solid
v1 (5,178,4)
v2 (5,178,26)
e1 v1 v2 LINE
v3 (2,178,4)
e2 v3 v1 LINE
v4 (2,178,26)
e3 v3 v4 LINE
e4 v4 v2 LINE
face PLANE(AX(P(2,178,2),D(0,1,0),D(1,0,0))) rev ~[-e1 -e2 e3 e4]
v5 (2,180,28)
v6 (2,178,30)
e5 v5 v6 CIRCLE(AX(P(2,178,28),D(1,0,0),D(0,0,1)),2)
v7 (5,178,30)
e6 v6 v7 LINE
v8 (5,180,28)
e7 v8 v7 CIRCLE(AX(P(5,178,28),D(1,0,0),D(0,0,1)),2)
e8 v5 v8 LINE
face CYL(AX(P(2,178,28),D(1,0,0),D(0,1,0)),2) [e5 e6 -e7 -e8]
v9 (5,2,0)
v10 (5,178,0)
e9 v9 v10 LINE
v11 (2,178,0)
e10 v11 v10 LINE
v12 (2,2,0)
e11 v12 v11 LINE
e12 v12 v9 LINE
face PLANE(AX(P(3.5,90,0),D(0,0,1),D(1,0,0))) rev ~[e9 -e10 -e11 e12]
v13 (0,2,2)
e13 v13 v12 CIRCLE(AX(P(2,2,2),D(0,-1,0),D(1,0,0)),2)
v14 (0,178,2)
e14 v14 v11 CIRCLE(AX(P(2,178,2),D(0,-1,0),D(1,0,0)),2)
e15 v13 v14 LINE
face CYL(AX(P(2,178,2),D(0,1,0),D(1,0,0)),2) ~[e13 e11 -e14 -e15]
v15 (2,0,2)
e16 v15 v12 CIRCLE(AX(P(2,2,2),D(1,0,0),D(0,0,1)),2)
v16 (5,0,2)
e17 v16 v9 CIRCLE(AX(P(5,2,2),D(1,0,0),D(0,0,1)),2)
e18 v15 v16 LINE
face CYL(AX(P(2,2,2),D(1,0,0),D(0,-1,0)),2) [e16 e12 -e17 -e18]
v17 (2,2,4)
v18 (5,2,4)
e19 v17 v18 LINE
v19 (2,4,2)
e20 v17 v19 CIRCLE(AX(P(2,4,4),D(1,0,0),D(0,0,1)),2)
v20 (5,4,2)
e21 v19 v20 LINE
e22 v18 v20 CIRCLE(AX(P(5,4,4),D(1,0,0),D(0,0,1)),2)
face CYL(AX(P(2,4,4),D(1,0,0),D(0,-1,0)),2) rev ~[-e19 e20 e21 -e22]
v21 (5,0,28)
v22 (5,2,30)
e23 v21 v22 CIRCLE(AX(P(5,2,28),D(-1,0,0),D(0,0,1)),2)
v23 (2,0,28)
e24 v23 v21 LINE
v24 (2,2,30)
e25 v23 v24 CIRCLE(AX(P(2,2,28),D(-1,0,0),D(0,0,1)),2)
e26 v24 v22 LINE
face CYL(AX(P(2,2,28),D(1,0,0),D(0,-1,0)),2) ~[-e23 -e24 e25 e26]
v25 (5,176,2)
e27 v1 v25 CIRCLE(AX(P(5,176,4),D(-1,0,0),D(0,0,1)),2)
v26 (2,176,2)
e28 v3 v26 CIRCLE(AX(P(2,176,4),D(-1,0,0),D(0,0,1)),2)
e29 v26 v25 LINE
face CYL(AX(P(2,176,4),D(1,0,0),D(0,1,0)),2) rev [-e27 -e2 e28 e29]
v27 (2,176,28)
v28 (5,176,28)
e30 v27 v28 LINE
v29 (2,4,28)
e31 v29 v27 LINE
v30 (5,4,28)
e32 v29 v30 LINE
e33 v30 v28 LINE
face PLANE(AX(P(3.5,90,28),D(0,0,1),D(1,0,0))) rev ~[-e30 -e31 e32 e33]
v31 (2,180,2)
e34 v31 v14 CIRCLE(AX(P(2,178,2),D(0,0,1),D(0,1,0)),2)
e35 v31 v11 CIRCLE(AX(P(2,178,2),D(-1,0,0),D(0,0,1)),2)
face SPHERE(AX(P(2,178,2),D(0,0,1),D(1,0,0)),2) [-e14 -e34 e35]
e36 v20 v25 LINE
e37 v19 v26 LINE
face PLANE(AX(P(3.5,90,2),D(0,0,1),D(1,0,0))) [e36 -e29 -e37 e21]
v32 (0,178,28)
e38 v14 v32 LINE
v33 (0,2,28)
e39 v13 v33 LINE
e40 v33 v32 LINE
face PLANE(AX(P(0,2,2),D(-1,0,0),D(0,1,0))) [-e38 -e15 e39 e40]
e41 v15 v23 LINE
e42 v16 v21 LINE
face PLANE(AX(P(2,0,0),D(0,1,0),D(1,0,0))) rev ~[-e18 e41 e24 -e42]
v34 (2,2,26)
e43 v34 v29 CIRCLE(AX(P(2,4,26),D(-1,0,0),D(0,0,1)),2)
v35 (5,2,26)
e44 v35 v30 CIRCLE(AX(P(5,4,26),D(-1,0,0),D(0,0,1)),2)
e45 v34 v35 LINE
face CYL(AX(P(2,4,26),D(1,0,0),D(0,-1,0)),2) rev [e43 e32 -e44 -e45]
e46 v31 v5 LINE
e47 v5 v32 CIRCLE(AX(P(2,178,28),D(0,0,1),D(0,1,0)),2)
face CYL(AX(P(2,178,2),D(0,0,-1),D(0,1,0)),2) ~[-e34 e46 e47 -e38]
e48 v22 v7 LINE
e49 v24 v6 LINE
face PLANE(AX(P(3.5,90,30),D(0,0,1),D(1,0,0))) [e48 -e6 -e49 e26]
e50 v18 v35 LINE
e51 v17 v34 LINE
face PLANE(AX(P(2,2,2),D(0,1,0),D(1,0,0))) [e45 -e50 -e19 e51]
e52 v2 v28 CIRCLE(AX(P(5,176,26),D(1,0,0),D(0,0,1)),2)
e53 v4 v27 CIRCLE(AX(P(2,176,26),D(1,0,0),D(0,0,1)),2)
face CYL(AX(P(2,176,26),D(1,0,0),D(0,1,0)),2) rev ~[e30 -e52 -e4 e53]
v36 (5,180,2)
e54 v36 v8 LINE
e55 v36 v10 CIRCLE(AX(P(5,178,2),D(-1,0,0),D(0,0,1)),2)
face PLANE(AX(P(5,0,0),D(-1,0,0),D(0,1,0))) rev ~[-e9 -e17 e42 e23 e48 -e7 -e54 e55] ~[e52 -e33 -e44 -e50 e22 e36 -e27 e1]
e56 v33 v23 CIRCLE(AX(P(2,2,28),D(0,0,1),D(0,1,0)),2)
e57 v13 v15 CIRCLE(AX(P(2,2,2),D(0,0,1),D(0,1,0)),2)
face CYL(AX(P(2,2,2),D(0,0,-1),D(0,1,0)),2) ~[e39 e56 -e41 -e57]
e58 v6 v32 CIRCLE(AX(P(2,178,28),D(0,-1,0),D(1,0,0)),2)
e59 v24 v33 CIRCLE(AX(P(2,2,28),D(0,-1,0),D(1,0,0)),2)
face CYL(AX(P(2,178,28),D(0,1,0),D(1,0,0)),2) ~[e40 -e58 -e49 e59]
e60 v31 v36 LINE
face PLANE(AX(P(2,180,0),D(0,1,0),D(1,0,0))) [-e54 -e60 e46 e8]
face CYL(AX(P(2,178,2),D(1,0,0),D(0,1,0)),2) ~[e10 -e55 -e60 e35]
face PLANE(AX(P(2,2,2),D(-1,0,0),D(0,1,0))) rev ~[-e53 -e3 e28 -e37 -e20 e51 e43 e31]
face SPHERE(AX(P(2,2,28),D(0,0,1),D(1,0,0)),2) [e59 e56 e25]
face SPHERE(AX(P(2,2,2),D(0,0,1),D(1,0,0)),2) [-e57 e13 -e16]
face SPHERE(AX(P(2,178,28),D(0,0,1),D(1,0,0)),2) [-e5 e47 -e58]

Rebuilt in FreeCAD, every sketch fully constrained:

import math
import FreeCAD as App
import Part
import Sketcher
from FreeCAD import Vector
Q = App.Units.Quantity


def edges_at(feature, points):
    """Names of the edges that pass closest to the given points."""
    edges = feature.Shape.Edges
    near = lambda p: min(range(len(edges)), key=lambda i: edges[i].distToShape(Part.Vertex(*p))[0])
    return sorted({f"Edge{near(p) + 1}" for p in points})


def add_polygon(sketch, points):
    """Adds a closed chain of lines whose ends are joined by coincident constraints."""
    first, n = sketch.GeometryCount, len(points)
    for a, b in zip(points, points[1:] + points[:1]):
        sketch.addGeometry(Part.LineSegment(App.Vector(*a, 0), App.Vector(*b, 0)), False)
    for i in range(n):
        sketch.addConstraint(Sketcher.Constraint("Coincident", first + i, 2, first + (i + 1) % n, 1))

doc = App.newDocument("Part")
body = doc.addObject("PartDesign::Body", "Body")

# Sketch on XY plane
sketch1 = body.newObject("Sketcher::SketchObject", "Sketch")
sketch1.AttachmentSupport = (doc.getObject("XY_Plane"), [""])
sketch1.MapMode = "FlatFace"
sketch1.AttachmentOffset = App.Placement(Vector(0, 0, 2), App.Rotation())
add_polygon(sketch1, [(7, 178), (7, 2), (10, 2), (10, 178)])  # lines 0-3
sketch1.addConstraint(Sketcher.Constraint("Vertical", 0))
sketch1.addConstraint(Sketcher.Constraint("Horizontal", 1))
sketch1.addConstraint(Sketcher.Constraint("Vertical", 2))
sketch1.addConstraint(Sketcher.Constraint("Horizontal", 3))
sketch1.addConstraint(Sketcher.Constraint("DistanceX", 1, 1, 1, 2, Q("3 mm")))
sketch1.addConstraint(Sketcher.Constraint("DistanceY", 0, 2, 0, 1, Q("176 mm")))
sketch1.addConstraint(Sketcher.Constraint("DistanceX", -1, 1, 0, 2, Q("7 mm")))
sketch1.addConstraint(Sketcher.Constraint("DistanceY", -1, 1, 0, 2, Q("2 mm")))
pad1 = body.newObject("PartDesign::Pad", "Pad")
pad1.Profile = sketch1
pad1.Length = 26
doc.recompute()

fillet = body.newObject("PartDesign::Fillet", "Fillet")
fillet.Base = (pad1, edges_at(pad1, [
    (8.5, 2, 2),
    (8.5, 2, 28),
    (8.5, 178, 2),
    (8.5, 178, 28),
]))
fillet.Radius = 2
body2 = doc.addObject("PartDesign::Body", "Body001")
doc.recompute()

body.Placement = App.Placement(Vector(-5, 0, 0), App.Rotation(Vector(0, 0, 1), 0))
boolean = body2.newObject("PartDesign::Boolean", "Boolean")
boolean.Type = "Fuse"
boolean.addObjects([body])
body3 = doc.addObject("PartDesign::Body", "Body002")

# Sketch on XY plane
sketch2 = body3.newObject("Sketcher::SketchObject", "Sketch001")
sketch2.AttachmentSupport = (doc.getObject("XY_Plane002"), [""])
sketch2.MapMode = "FlatFace"
sketch2.AttachmentOffset = App.Placement(Vector(0, 0, 2), App.Rotation())
add_polygon(sketch2, [(0, 178), (0, 2), (2, 2), (2, 178)])  # lines 0-3
sketch2.addConstraint(Sketcher.Constraint("Vertical", 0))
sketch2.addConstraint(Sketcher.Constraint("Horizontal", 1))
sketch2.addConstraint(Sketcher.Constraint("Vertical", 2))
sketch2.addConstraint(Sketcher.Constraint("Horizontal", 3))
sketch2.addConstraint(Sketcher.Constraint("PointOnObject", 0, 2, -2))
sketch2.addConstraint(Sketcher.Constraint("DistanceX", 1, 1, 1, 2, Q("2 mm")))
sketch2.addConstraint(Sketcher.Constraint("DistanceY", 0, 2, 0, 1, Q("176 mm")))
sketch2.addConstraint(Sketcher.Constraint("DistanceY", -1, 1, 0, 2, Q("2 mm")))
pad2 = body3.newObject("PartDesign::Pad", "Pad001")
pad2.Profile = sketch2
pad2.Length = 26
body4 = doc.addObject("PartDesign::Body", "Body003")

# Sketch on XY plane
sketch3 = body4.newObject("Sketcher::SketchObject", "Sketch002")
sketch3.AttachmentSupport = (doc.getObject("XY_Plane003"), [""])
sketch3.MapMode = "FlatFace"
sketch3.AttachmentOffset = App.Placement(Vector(0, 0, 2), App.Rotation())
sketch3.addGeometry(Part.Circle(Vector(2, 2, 0), Vector(0, 0, 1), 2), False)
sketch3.addConstraint(Sketcher.Constraint("Diameter", 0, Q("4 mm")))
sketch3.addConstraint(Sketcher.Constraint("DistanceX", -1, 1, 0, 3, Q("2 mm")))
sketch3.addConstraint(Sketcher.Constraint("DistanceY", -1, 1, 0, 3, Q("2 mm")))
pad3 = body4.newObject("PartDesign::Pad", "Pad002")
pad3.Profile = sketch3
pad3.Length = 26
body5 = doc.addObject("PartDesign::Body", "Body004")

# Sketch on XY plane
sketch4 = body5.newObject("Sketcher::SketchObject", "Sketch003")
sketch4.AttachmentSupport = (doc.getObject("XY_Plane004"), [""])
sketch4.MapMode = "FlatFace"
sketch4.AttachmentOffset = App.Placement(Vector(0, 0, 2), App.Rotation())
sketch4.addGeometry(Part.Circle(Vector(2, 178, 0), Vector(0, 0, 1), 2), False)
sketch4.addConstraint(Sketcher.Constraint("Diameter", 0, Q("4 mm")))
sketch4.addConstraint(Sketcher.Constraint("DistanceX", -1, 1, 0, 3, Q("2 mm")))
sketch4.addConstraint(Sketcher.Constraint("DistanceY", -1, 1, 0, 3, Q("178 mm")))
pad4 = body5.newObject("PartDesign::Pad", "Pad003")
pad4.Profile = sketch4
pad4.Length = 26
body6 = doc.addObject("PartDesign::Body", "Body005")

# Sketch on XZ plane
sketch5 = body6.newObject("Sketcher::SketchObject", "Sketch004")
sketch5.AttachmentSupport = (doc.getObject("XZ_Plane005"), [""])
sketch5.MapMode = "FlatFace"
sketch5.AttachmentOffset = App.Placement(Vector(0, 0, -178), App.Rotation())
sketch5.addGeometry(Part.Circle(Vector(2, 2, 0), Vector(0, 0, 1), 2), False)
sketch5.addConstraint(Sketcher.Constraint("Diameter", 0, Q("4 mm")))
sketch5.addConstraint(Sketcher.Constraint("DistanceX", -1, 1, 0, 3, Q("2 mm")))
sketch5.addConstraint(Sketcher.Constraint("DistanceY", -1, 1, 0, 3, Q("2 mm")))
pad5 = body6.newObject("PartDesign::Pad", "Pad004")
pad5.Profile = sketch5
pad5.Length = 176
body7 = doc.addObject("PartDesign::Body", "Body006")

# Sketch on XZ plane
sketch6 = body7.newObject("Sketcher::SketchObject", "Sketch005")
sketch6.AttachmentSupport = (doc.getObject("XZ_Plane006"), [""])
sketch6.MapMode = "FlatFace"
sketch6.AttachmentOffset = App.Placement(Vector(0, 0, -178), App.Rotation())
sketch6.addGeometry(Part.Circle(Vector(2, 28, 0), Vector(0, 0, 1), 2), False)
sketch6.addConstraint(Sketcher.Constraint("Diameter", 0, Q("4 mm")))
sketch6.addConstraint(Sketcher.Constraint("DistanceX", -1, 1, 0, 3, Q("2 mm")))
sketch6.addConstraint(Sketcher.Constraint("DistanceY", -1, 1, 0, 3, Q("28 mm")))
pad6 = body7.newObject("PartDesign::Pad", "Pad005")
pad6.Profile = sketch6
pad6.Length = 176
body8 = doc.addObject("PartDesign::Body", "Body007")

# Sketch on XZ plane
sketch7 = body8.newObject("Sketcher::SketchObject", "Sketch006")
sketch7.AttachmentSupport = (doc.getObject("XZ_Plane007"), [""])
sketch7.MapMode = "FlatFace"
sketch7.AttachmentOffset = App.Placement(Vector(0, 0, -2), App.Rotation())
sketch7.addGeometry(Part.ArcOfCircle(Part.Circle(Vector(2, 2, 0), Vector(0, 0, 1), 2), math.radians(-90), math.radians(90)), False)
sketch7.addGeometry(Part.LineSegment(Vector(2, 4, 0), Vector(2, 0, 0)), False)
sketch7.addGeometry(Part.LineSegment(Vector(2, 0, 0), Vector(2, 4, 0)), True)  # axis
sketch7.addConstraint(Sketcher.Constraint("Coincident", 0, 1, 1, 2))
sketch7.addConstraint(Sketcher.Constraint("Coincident", 1, 1, 0, 2))
sketch7.addConstraint(Sketcher.Constraint("Vertical", 1))
sketch7.addConstraint(Sketcher.Constraint("Vertical", 2))
sketch7.addConstraint(Sketcher.Constraint("Coincident", 2, 1, 0, 1))
sketch7.addConstraint(Sketcher.Constraint("PointOnObject", 0, 1, -1))
sketch7.addConstraint(Sketcher.Constraint("Equal", 1, 2))
sketch7.addConstraint(Sketcher.Constraint("Radius", 0, Q("2 mm")))
sketch7.addConstraint(Sketcher.Constraint("DistanceX", -1, 1, 0, 3, Q("2 mm")))
sketch7.addConstraint(Sketcher.Constraint("DistanceX", -1, 1, 0, 1, Q("2 mm")))
revolution = body8.newObject("PartDesign::Revolution", "Revolution")
revolution.Profile = sketch7
revolution.ReferenceAxis = (sketch7, ["Axis0"])
revolution.Angle = 360
body9 = doc.addObject("PartDesign::Body", "Body008")

# Sketch on XZ plane
sketch8 = body9.newObject("Sketcher::SketchObject", "Sketch007")
sketch8.AttachmentSupport = (doc.getObject("XZ_Plane008"), [""])
sketch8.MapMode = "FlatFace"
sketch8.AttachmentOffset = App.Placement(Vector(0, 0, -178), App.Rotation())
sketch8.addGeometry(Part.ArcOfCircle(Part.Circle(Vector(2, 2, 0), Vector(0, 0, 1), 2), math.radians(-90), math.radians(90)), False)
sketch8.addGeometry(Part.LineSegment(Vector(2, 4, 0), Vector(2, 0, 0)), False)
sketch8.addGeometry(Part.LineSegment(Vector(2, 0, 0), Vector(2, 4, 0)), True)  # axis
sketch8.addConstraint(Sketcher.Constraint("Coincident", 0, 1, 1, 2))
sketch8.addConstraint(Sketcher.Constraint("Coincident", 1, 1, 0, 2))
sketch8.addConstraint(Sketcher.Constraint("Vertical", 1))
sketch8.addConstraint(Sketcher.Constraint("Vertical", 2))
sketch8.addConstraint(Sketcher.Constraint("Coincident", 2, 1, 0, 1))
sketch8.addConstraint(Sketcher.Constraint("PointOnObject", 0, 1, -1))
sketch8.addConstraint(Sketcher.Constraint("Equal", 1, 2))
sketch8.addConstraint(Sketcher.Constraint("Radius", 0, Q("2 mm")))
sketch8.addConstraint(Sketcher.Constraint("DistanceX", -1, 1, 0, 3, Q("2 mm")))
sketch8.addConstraint(Sketcher.Constraint("DistanceX", -1, 1, 0, 1, Q("2 mm")))
revolution2 = body9.newObject("PartDesign::Revolution", "Revolution001")
revolution2.Profile = sketch8
revolution2.ReferenceAxis = (sketch8, ["Axis0"])
revolution2.Angle = 360
body10 = doc.addObject("PartDesign::Body", "Body009")

# Sketch on XZ plane
sketch9 = body10.newObject("Sketcher::SketchObject", "Sketch008")
sketch9.AttachmentSupport = (doc.getObject("XZ_Plane009"), [""])
sketch9.MapMode = "FlatFace"
sketch9.AttachmentOffset = App.Placement(Vector(0, 0, -2), App.Rotation())
sketch9.addGeometry(Part.ArcOfCircle(Part.Circle(Vector(2, 28, 0), Vector(0, 0, 1), 2), math.radians(-90), math.radians(90)), False)
sketch9.addGeometry(Part.LineSegment(Vector(2, 30, 0), Vector(2, 26, 0)), False)
sketch9.addGeometry(Part.LineSegment(Vector(2, 26, 0), Vector(2, 30, 0)), True)  # axis
sketch9.addConstraint(Sketcher.Constraint("Coincident", 0, 1, 1, 2))
sketch9.addConstraint(Sketcher.Constraint("Coincident", 1, 1, 0, 2))
sketch9.addConstraint(Sketcher.Constraint("Vertical", 1))
sketch9.addConstraint(Sketcher.Constraint("Vertical", 2))
sketch9.addConstraint(Sketcher.Constraint("Coincident", 2, 1, 0, 1))
sketch9.addConstraint(Sketcher.Constraint("Equal", 1, 2))
sketch9.addConstraint(Sketcher.Constraint("Radius", 0, Q("2 mm")))
sketch9.addConstraint(Sketcher.Constraint("DistanceX", -1, 1, 0, 3, Q("2 mm")))
sketch9.addConstraint(Sketcher.Constraint("DistanceY", -1, 1, 0, 3, Q("28 mm")))
sketch9.addConstraint(Sketcher.Constraint("DistanceX", -1, 1, 0, 1, Q("2 mm")))
revolution3 = body10.newObject("PartDesign::Revolution", "Revolution002")
revolution3.Profile = sketch9
revolution3.ReferenceAxis = (sketch9, ["Axis0"])
revolution3.Angle = 360
body11 = doc.addObject("PartDesign::Body", "Body010")

# Sketch on XZ plane
sketch10 = body11.newObject("Sketcher::SketchObject", "Sketch009")
sketch10.AttachmentSupport = (doc.getObject("XZ_Plane010"), [""])
sketch10.MapMode = "FlatFace"
sketch10.AttachmentOffset = App.Placement(Vector(0, 0, -178), App.Rotation())
sketch10.addGeometry(Part.ArcOfCircle(Part.Circle(Vector(2, 28, 0), Vector(0, 0, 1), 2), math.radians(-90), math.radians(90)), False)
sketch10.addGeometry(Part.LineSegment(Vector(2, 30, 0), Vector(2, 26, 0)), False)
sketch10.addGeometry(Part.LineSegment(Vector(2, 26, 0), Vector(2, 30, 0)), True)  # axis
sketch10.addConstraint(Sketcher.Constraint("Coincident", 0, 1, 1, 2))
sketch10.addConstraint(Sketcher.Constraint("Coincident", 1, 1, 0, 2))
sketch10.addConstraint(Sketcher.Constraint("Vertical", 1))
sketch10.addConstraint(Sketcher.Constraint("Vertical", 2))
sketch10.addConstraint(Sketcher.Constraint("Coincident", 2, 1, 0, 1))
sketch10.addConstraint(Sketcher.Constraint("Equal", 1, 2))
sketch10.addConstraint(Sketcher.Constraint("Radius", 0, Q("2 mm")))
sketch10.addConstraint(Sketcher.Constraint("DistanceX", -1, 1, 0, 3, Q("2 mm")))
sketch10.addConstraint(Sketcher.Constraint("DistanceY", -1, 1, 0, 3, Q("28 mm")))
sketch10.addConstraint(Sketcher.Constraint("DistanceX", -1, 1, 0, 1, Q("2 mm")))
revolution4 = body11.newObject("PartDesign::Revolution", "Revolution003")
revolution4.Profile = sketch10
revolution4.ReferenceAxis = (sketch10, ["Axis0"])
revolution4.Angle = 360
body12 = doc.addObject("PartDesign::Body", "Body011")

# Sketch on XY plane
sketch11 = body12.newObject("Sketcher::SketchObject", "Sketch010")
sketch11.AttachmentSupport = (doc.getObject("XY_Plane011"), [""])
sketch11.MapMode = "FlatFace"
add_polygon(sketch11, [(2, 180), (2, 0), (5, 0), (5, 180)])  # lines 0-3
sketch11.addConstraint(Sketcher.Constraint("Vertical", 0))
sketch11.addConstraint(Sketcher.Constraint("Horizontal", 1))
sketch11.addConstraint(Sketcher.Constraint("Vertical", 2))
sketch11.addConstraint(Sketcher.Constraint("Horizontal", 3))
sketch11.addConstraint(Sketcher.Constraint("PointOnObject", 0, 2, -1))
sketch11.addConstraint(Sketcher.Constraint("DistanceX", 1, 1, 1, 2, Q("3 mm")))
sketch11.addConstraint(Sketcher.Constraint("DistanceY", 0, 2, 0, 1, Q("180 mm")))
sketch11.addConstraint(Sketcher.Constraint("DistanceX", -1, 1, 0, 2, Q("2 mm")))
pad7 = body12.newObject("PartDesign::Pad", "Pad006")
pad7.Profile = sketch11
pad7.Length = 30
doc.recompute()

fillet2 = body12.newObject("PartDesign::Fillet", "Fillet001")
fillet2.Base = (pad7, edges_at(pad7, [
    (3.5, 0, 0),
    (3.5, 0, 30),
    (3.5, 180, 0),
    (3.5, 180, 30),
]))
fillet2.Radius = 2
doc.recompute()

boolean2 = body12.newObject("PartDesign::Boolean", "Boolean001")
boolean2.Type = "Fuse"
boolean2.addObjects([body3])
doc.recompute()

boolean3 = body12.newObject("PartDesign::Boolean", "Boolean002")
boolean3.Type = "Fuse"
boolean3.addObjects([body4])
doc.recompute()

boolean4 = body12.newObject("PartDesign::Boolean", "Boolean003")
boolean4.Type = "Fuse"
boolean4.addObjects([body5])
doc.recompute()

boolean5 = body12.newObject("PartDesign::Boolean", "Boolean004")
boolean5.Type = "Fuse"
boolean5.addObjects([body6])
doc.recompute()

boolean6 = body12.newObject("PartDesign::Boolean", "Boolean005")
boolean6.Type = "Fuse"
boolean6.addObjects([body7])
doc.recompute()

boolean7 = body12.newObject("PartDesign::Boolean", "Boolean006")
boolean7.Type = "Fuse"
boolean7.addObjects([body8])
doc.recompute()

boolean8 = body12.newObject("PartDesign::Boolean", "Boolean007")
boolean8.Type = "Fuse"
boolean8.addObjects([body9])
doc.recompute()

boolean9 = body12.newObject("PartDesign::Boolean", "Boolean008")
boolean9.Type = "Fuse"
boolean9.addObjects([body10])
doc.recompute()

boolean10 = body12.newObject("PartDesign::Boolean", "Boolean009")
boolean10.Type = "Fuse"
boolean10.addObjects([body11])
doc.recompute()

boolean11 = body12.newObject("PartDesign::Boolean", "Boolean010")
boolean11.Type = "Cut"
boolean11.addObjects([body2])

doc.recompute()
